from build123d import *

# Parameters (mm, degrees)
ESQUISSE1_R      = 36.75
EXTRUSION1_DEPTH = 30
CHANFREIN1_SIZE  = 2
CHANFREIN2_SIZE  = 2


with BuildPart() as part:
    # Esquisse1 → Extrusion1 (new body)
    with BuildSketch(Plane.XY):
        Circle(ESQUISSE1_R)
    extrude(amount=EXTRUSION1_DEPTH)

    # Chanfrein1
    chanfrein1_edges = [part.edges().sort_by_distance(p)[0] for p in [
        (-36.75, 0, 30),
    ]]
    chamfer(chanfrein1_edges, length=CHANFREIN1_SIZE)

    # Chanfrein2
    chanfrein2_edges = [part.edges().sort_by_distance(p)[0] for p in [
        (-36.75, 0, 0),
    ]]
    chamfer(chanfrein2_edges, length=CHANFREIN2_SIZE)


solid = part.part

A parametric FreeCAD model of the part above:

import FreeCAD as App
import Part
import Sketcher
Q = App.Units.Quantity


def edges_at(feature, points):
    """Names of the edges that pass closest to the given points."""
    edges = feature.Shape.Edges
    near = lambda p: min(range(len(edges)), key=lambda i: edges[i].distToShape(Part.Vertex(*p))[0])
    return sorted({f"Edge{near(p) + 1}" for p in points})

doc = App.newDocument("Part")
body = doc.addObject("PartDesign::Body", "Body")

# Sketch on XY plane
sketch1 = body.newObject("Sketcher::SketchObject", "Sketch")
sketch1.AttachmentSupport = (doc.getObject("XY_Plane"), [""])
sketch1.MapMode = "FlatFace"
sketch1.addGeometry(Part.Circle(App.Vector(0, 0, 0), App.Vector(0, 0, 1), 37), False)
sketch1.addConstraint([
    Sketcher.Constraint("Coincident", 0, 3, -1, 1),
    Sketcher.Constraint("Diameter", 0, Q("73.5 mm")),
])
pad1 = body.newObject("PartDesign::Pad", "Pad")
pad1.Profile = sketch1
pad1.Length = 30
doc.recompute()

chamfer = body.newObject("PartDesign::Chamfer", "Chamfer")
chamfer.Base = (pad1, edges_at(pad1, [(-36.75, 0, 30)]))
chamfer.Size = 2
doc.recompute()

chamfer2 = body.newObject("PartDesign::Chamfer", "Chamfer001")
chamfer2.Base = (chamfer, edges_at(chamfer, [(-36.75, 0, 0)]))
chamfer2.Size = 2

doc.recompute()
